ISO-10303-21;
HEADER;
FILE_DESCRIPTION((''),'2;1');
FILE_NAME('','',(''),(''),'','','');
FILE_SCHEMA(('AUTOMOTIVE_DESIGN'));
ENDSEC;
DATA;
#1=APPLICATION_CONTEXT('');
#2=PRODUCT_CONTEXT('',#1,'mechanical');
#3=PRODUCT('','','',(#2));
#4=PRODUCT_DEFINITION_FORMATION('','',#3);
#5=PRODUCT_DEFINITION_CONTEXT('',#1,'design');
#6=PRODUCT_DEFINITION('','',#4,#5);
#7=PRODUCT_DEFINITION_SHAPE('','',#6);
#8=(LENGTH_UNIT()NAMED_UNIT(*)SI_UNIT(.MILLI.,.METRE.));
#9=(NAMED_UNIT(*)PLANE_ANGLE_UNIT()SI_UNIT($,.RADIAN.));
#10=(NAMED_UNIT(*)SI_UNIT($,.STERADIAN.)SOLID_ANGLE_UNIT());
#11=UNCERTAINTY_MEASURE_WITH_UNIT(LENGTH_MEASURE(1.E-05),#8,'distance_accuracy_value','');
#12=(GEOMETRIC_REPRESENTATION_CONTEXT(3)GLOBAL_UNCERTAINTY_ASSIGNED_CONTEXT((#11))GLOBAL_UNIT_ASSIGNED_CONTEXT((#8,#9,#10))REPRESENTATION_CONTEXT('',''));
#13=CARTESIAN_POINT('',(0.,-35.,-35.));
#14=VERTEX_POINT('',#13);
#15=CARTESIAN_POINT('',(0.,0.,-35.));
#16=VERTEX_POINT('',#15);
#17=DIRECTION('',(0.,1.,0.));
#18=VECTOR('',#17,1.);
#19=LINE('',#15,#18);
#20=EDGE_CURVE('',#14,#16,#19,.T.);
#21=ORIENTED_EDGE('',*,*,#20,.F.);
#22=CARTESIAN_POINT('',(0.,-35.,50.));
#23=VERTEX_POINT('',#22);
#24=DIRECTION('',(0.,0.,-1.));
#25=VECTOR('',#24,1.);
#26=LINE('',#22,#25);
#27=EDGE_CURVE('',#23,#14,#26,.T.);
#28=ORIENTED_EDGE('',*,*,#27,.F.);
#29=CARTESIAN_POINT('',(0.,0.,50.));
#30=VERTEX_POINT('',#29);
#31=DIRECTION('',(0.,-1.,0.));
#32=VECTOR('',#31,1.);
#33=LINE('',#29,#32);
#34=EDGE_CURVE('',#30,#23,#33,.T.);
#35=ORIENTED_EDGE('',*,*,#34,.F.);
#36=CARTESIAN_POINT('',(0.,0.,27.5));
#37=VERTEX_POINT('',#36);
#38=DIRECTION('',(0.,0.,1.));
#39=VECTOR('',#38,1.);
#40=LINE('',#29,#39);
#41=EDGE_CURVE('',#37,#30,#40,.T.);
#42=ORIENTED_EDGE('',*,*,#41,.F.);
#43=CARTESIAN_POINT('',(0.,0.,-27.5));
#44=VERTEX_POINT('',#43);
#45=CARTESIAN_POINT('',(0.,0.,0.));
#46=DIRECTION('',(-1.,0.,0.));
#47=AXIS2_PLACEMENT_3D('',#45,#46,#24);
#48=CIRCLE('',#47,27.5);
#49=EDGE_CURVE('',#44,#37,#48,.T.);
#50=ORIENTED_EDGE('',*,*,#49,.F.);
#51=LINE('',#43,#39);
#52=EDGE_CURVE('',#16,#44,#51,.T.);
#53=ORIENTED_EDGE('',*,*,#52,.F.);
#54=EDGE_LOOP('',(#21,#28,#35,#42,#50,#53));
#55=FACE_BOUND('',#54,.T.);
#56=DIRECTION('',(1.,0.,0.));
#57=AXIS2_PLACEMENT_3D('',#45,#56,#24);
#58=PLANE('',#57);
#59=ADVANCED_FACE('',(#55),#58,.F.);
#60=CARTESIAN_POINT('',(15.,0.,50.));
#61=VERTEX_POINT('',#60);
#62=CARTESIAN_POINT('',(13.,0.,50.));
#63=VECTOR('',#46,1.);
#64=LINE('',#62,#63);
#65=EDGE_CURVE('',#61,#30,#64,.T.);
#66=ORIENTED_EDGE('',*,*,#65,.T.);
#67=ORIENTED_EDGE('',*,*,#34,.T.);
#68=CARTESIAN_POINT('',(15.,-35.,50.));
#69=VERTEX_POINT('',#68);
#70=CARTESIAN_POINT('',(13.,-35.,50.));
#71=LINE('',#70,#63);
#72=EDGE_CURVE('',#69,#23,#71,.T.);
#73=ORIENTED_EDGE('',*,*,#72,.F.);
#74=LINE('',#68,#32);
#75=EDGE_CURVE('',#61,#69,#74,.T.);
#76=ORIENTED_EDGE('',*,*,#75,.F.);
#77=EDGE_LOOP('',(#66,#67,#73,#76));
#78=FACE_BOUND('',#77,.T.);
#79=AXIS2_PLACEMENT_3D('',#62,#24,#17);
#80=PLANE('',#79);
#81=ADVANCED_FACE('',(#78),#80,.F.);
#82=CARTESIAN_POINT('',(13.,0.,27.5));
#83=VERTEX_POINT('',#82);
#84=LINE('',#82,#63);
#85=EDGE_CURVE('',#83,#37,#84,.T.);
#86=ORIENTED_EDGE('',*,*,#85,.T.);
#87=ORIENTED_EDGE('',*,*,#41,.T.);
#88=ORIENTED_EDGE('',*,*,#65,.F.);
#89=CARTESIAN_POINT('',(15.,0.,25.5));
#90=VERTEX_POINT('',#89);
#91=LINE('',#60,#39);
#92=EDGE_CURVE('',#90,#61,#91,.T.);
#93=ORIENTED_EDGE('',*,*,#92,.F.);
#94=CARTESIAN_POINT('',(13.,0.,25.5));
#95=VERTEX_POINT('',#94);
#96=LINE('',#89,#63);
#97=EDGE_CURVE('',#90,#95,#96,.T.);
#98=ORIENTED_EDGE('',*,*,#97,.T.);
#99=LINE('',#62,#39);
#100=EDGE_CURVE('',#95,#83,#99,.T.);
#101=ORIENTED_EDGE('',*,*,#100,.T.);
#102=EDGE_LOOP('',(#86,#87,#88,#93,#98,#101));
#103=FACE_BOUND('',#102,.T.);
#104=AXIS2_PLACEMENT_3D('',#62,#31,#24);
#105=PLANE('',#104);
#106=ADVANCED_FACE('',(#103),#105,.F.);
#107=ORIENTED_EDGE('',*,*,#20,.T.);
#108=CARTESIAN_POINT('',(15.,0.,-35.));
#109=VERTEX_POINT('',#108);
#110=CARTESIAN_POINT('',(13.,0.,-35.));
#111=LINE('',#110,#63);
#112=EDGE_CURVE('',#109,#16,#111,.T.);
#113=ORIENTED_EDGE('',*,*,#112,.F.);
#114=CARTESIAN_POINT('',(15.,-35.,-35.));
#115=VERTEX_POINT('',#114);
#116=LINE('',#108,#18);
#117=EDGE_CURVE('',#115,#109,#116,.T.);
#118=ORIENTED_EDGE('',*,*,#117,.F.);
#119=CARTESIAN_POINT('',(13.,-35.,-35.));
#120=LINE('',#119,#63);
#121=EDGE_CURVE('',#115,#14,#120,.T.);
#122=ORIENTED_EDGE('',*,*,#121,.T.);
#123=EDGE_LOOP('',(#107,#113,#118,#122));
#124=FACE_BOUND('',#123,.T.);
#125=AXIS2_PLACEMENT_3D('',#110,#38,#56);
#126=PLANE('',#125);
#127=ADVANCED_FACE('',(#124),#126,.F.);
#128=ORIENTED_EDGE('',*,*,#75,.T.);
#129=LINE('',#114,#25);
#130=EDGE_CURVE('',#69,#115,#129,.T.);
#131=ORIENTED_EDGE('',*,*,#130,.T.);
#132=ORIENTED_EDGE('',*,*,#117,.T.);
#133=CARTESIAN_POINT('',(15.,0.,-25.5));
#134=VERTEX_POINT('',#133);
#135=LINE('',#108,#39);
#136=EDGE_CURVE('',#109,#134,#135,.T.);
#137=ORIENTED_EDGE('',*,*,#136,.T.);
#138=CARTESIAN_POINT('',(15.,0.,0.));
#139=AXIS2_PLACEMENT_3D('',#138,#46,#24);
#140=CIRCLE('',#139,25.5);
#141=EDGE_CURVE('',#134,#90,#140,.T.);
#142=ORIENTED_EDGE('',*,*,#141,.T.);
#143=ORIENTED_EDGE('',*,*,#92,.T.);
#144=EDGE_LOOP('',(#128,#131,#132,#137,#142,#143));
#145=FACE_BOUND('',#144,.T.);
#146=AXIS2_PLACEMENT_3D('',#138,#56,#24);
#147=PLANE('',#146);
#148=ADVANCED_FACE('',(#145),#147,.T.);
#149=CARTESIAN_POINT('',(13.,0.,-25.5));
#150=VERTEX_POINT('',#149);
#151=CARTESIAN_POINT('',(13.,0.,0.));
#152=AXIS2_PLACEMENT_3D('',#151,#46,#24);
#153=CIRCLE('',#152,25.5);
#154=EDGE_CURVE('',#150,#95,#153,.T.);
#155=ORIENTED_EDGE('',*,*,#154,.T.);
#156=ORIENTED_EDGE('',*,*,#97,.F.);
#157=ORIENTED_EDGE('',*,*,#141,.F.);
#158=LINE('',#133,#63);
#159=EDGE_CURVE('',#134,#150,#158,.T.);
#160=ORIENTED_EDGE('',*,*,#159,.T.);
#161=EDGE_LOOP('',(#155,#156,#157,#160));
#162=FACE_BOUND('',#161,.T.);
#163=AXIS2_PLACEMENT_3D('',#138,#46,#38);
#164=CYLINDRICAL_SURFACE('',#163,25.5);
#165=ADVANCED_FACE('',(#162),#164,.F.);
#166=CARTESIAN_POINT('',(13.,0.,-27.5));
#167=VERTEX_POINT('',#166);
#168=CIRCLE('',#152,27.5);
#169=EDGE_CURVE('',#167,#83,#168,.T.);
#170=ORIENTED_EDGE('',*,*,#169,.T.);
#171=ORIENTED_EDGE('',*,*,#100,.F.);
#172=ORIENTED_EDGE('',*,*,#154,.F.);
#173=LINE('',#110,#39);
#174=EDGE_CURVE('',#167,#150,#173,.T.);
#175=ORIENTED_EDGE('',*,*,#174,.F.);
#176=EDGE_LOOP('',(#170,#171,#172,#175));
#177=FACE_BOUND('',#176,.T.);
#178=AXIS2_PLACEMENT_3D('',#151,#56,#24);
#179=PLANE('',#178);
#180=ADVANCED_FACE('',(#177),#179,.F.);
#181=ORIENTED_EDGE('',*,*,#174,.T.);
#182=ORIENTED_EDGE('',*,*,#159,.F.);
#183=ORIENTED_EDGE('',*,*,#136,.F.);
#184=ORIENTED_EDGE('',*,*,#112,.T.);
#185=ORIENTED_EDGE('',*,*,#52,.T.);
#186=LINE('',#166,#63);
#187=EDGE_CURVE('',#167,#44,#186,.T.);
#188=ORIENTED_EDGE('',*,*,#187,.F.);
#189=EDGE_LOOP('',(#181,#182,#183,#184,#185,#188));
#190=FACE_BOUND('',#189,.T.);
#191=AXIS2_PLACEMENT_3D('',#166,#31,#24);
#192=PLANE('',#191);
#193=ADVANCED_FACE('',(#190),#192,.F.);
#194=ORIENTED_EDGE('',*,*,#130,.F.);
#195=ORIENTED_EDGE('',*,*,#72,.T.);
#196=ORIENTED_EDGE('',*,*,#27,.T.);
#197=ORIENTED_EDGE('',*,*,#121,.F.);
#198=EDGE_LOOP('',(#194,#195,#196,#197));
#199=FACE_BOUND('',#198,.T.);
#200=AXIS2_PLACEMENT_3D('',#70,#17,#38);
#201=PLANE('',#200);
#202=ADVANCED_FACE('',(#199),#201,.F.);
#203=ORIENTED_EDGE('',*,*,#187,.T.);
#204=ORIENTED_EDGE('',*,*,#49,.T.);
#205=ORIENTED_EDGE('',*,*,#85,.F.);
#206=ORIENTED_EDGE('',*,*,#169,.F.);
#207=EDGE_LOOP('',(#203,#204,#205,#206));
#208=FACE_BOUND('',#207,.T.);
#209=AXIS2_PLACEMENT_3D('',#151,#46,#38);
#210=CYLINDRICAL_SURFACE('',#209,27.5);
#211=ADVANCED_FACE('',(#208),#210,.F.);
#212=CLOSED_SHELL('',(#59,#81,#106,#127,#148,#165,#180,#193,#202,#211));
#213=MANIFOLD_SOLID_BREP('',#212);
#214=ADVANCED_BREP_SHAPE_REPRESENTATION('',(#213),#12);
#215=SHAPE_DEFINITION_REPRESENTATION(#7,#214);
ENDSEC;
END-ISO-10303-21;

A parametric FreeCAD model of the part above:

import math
import FreeCAD as App
import Part
import Sketcher

V = App.Vector
Q = App.Units.Quantity

doc = App.newDocument("Part")
body = doc.addObject("PartDesign::Body", "Body")

# Sketch on YZ plane
sketch1 = body.newObject("Sketcher::SketchObject", "Sketch")
sketch1.AttachmentSupport = (doc.getObject("YZ_Plane"), [""])
sketch1.MapMode = "FlatFace"
sketch1.addGeometry([
    Part.LineSegment(V(0, 28, 0), V(0, 50, 0)),  # 0
    Part.LineSegment(V(0, 50, 0), V(-35, 50, 0)),  # 1
    Part.LineSegment(V(-35, 50, 0), V(-35, -35, 0)),  # 2
    Part.LineSegment(V(-35, -35, 0), V(0, -35, 0)),  # 3
    Part.LineSegment(V(0, -35, 0), V(0, -28, 0)),  # 4
    Part.ArcOfCircle(Part.Circle(V(0, 0, 0), V(0, 0, 1), 28), math.radians(90), math.radians(270)),  # 5
], False)
sketch1.addConstraint([
    Sketcher.Constraint("Coincident", 0, 2, 1, 1),
    Sketcher.Constraint("Coincident", 1, 2, 2, 1),
    Sketcher.Constraint("Coincident", 2, 2, 3, 1),
    Sketcher.Constraint("Coincident", 3, 2, 4, 1),
    Sketcher.Constraint("Coincident", 4, 2, 5, 2),
    Sketcher.Constraint("Coincident", 5, 1, 0, 1),
    Sketcher.Constraint("Vertical", 0),
    Sketcher.Constraint("Horizontal", 1),
    Sketcher.Constraint("Vertical", 2),
    Sketcher.Constraint("Horizontal", 3),
    Sketcher.Constraint("Vertical", 4),
    Sketcher.Constraint("Coincident", 5, 3, -1, 1),
    Sketcher.Constraint("PointOnObject", 0, 2, -2),
    Sketcher.Constraint("PointOnObject", 3, 2, -2),
    Sketcher.Constraint("Radius", 5, Q("27.5 mm")),
    Sketcher.Constraint("DistanceX", 1, 2, 1, 1, Q("35 mm")),
    Sketcher.Constraint("DistanceY", 2, 2, 2, 1, Q("85 mm")),
    Sketcher.Constraint("DistanceY", 0, 1, 0, 2, Q("22.5 mm")),
])
pad1 = body.newObject("PartDesign::Pad", "Pad")
pad1.Profile = sketch1
pad1.Length = 13

# Sketch on YZ plane
sketch2 = body.newObject("Sketcher::SketchObject", "Sketch001")
sketch2.AttachmentSupport = (doc.getObject("YZ_Plane"), [""])
sketch2.MapMode = "FlatFace"
sketch2.AttachmentOffset = App.Placement(V(0, 0, 13), App.Rotation())
sketch2.addGeometry([
    Part.LineSegment(V(-35, -35, 0), V(0, -35, 0)),  # 0
    Part.LineSegment(V(0, -35, 0), V(0, -26, 0)),  # 1
    Part.ArcOfCircle(Part.Circle(V(0, 0, 0), V(0, 0, 1), 26), math.radians(90), math.radians(270)),  # 2
    Part.LineSegment(V(0, 26, 0), V(0, 50, 0)),  # 3
    Part.LineSegment(V(0, 50, 0), V(-35, 50, 0)),  # 4
    Part.LineSegment(V(-35, 50, 0), V(-35, -35, 0)),  # 5
], False)
sketch2.addConstraint([
    Sketcher.Constraint("Coincident", 0, 2, 1, 1),
    Sketcher.Constraint("Coincident", 1, 2, 2, 2),
    Sketcher.Constraint("Coincident", 2, 1, 3, 1),
    Sketcher.Constraint("Coincident", 3, 2, 4, 1),
    Sketcher.Constraint("Coincident", 4, 2, 5, 1),
    Sketcher.Constraint("Coincident", 5, 2, 0, 1),
    Sketcher.Constraint("Horizontal", 0),
    Sketcher.Constraint("Vertical", 1),
    Sketcher.Constraint("Vertical", 3),
    Sketcher.Constraint("Horizontal", 4),
    Sketcher.Constraint("Vertical", 5),
    Sketcher.Constraint("Coincident", 2, 3, -1, 1),
    Sketcher.Constraint("PointOnObject", 0, 2, -2),
    Sketcher.Constraint("PointOnObject", 2, 1, -2),
    Sketcher.Constraint("Radius", 2, Q("25.5 mm")),
    Sketcher.Constraint("DistanceX", 0, 1, 0, 2, Q("35 mm")),
    Sketcher.Constraint("DistanceY", 5, 2, 5, 1, Q("85 mm")),
    Sketcher.Constraint("DistanceY", 1, 1, 1, 2, Q("9.5 mm")),
])
pad2 = body.newObject("PartDesign::Pad", "Pad001")
pad2.Profile = sketch2
pad2.Length = 2

doc.recompute()
